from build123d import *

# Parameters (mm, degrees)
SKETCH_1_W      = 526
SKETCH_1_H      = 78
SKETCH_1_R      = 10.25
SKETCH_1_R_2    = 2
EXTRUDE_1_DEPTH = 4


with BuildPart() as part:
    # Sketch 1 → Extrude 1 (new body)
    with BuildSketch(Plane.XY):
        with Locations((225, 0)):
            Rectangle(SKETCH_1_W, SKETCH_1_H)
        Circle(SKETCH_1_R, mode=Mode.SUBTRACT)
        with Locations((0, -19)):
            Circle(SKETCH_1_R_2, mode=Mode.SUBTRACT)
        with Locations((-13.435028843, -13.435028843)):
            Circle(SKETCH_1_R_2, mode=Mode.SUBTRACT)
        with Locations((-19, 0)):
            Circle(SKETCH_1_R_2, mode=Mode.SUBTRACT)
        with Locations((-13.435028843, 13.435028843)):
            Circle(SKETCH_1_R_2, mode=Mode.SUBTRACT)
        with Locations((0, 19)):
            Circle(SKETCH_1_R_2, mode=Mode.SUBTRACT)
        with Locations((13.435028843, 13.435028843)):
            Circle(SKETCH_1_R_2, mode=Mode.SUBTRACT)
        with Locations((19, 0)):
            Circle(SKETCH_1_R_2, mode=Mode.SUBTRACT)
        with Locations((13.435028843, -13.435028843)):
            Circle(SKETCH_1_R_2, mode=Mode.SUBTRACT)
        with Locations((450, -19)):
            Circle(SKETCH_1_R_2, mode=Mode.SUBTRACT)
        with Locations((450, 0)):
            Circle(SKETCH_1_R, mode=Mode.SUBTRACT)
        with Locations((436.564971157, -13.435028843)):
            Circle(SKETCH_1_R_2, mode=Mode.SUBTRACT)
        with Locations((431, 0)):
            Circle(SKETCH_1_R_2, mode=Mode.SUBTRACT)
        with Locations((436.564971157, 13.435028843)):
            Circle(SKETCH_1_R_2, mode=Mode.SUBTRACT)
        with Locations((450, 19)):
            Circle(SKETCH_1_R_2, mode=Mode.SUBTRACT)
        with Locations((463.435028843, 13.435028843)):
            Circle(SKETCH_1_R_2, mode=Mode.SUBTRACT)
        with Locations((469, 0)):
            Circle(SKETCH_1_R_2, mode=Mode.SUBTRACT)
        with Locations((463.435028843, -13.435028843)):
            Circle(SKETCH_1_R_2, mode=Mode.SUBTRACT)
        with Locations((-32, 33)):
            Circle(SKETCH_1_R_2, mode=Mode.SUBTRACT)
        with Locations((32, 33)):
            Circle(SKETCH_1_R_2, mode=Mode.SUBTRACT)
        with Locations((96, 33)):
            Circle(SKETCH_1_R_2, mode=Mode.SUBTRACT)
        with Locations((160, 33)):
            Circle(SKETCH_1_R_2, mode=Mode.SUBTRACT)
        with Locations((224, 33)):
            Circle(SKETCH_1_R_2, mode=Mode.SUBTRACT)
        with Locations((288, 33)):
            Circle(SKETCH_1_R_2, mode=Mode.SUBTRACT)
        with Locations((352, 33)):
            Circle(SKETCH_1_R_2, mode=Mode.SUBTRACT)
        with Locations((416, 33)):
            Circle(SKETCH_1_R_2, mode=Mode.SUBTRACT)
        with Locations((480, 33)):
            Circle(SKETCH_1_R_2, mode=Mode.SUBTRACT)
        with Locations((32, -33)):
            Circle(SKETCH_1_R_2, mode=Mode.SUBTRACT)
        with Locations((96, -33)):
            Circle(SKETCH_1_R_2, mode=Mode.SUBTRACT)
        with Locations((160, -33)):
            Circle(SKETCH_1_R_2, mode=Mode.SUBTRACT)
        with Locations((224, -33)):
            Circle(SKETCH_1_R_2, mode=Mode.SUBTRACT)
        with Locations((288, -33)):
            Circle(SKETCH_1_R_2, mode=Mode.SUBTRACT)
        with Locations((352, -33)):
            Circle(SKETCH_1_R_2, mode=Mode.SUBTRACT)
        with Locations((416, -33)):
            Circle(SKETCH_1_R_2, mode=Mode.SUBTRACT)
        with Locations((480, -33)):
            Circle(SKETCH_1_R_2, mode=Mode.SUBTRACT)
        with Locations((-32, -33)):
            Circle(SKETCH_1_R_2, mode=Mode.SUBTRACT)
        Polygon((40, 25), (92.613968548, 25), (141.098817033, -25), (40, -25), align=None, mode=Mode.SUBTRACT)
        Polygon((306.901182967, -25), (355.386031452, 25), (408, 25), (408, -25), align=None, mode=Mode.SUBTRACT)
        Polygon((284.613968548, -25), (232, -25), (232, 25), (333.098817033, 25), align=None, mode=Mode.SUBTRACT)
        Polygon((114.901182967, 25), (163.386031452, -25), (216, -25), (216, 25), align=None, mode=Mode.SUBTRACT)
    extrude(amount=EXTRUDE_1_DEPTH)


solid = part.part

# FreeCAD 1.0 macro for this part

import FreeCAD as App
import Part
import Sketcher

doc = App.newDocument("Part")
body = doc.addObject("PartDesign::Body", "Body")

sketch1 = doc.addObject("Sketcher::SketchObject", "Sketch")
body.addObject(sketch1)
sketch1.AttachmentSupport = (doc.XY_Plane, [""])
sketch1.MapMode = "FlatFace"
sketch1.addGeometry([
    Part.LineSegment(App.Vector(-38, 39, 0), App.Vector(-38, -39, 0)),
    Part.LineSegment(App.Vector(-38, -39, 0), App.Vector(488, -39, 0)),
    Part.LineSegment(App.Vector(488, -39, 0), App.Vector(488, 39, 0)),
    Part.LineSegment(App.Vector(488, 39, 0), App.Vector(-38, 39, 0)),
    Part.Circle(App.Vector(-32, -33, 0), App.Vector(0, 0, 1), 2),
    Part.Circle(App.Vector(32, -33, 0), App.Vector(0, 0, 1), 2),
    Part.Circle(App.Vector(0, -19, 0), App.Vector(0, 0, 1), 2),
    Part.Circle(App.Vector(96, -33, 0), App.Vector(0, 0, 1), 2),
    Part.Circle(App.Vector(160, -33, 0), App.Vector(0, 0, 1), 2),
    Part.Circle(App.Vector(-13.4, -13.4, 0), App.Vector(0, 0, 1), 2),
    Part.Circle(App.Vector(13.4, -13.4, 0), App.Vector(0, 0, 1), 2),
    Part.Circle(App.Vector(224, -33, 0), App.Vector(0, 0, 1), 2),
    Part.Circle(App.Vector(288, -33, 0), App.Vector(0, 0, 1), 2),
    Part.Circle(App.Vector(352, -33, 0), App.Vector(0, 0, 1), 2),
    Part.Circle(App.Vector(416, -33, 0), App.Vector(0, 0, 1), 2),
    Part.Circle(App.Vector(480, -33, 0), App.Vector(0, 0, 1), 2),
    Part.Circle(App.Vector(450, -19, 0), App.Vector(0, 0, 1), 2),
    Part.Circle(App.Vector(436.6, -13.4, 0), App.Vector(0, 0, 1), 2),
    Part.Circle(App.Vector(463.4, -13.4, 0), App.Vector(0, 0, 1), 2),
    Part.Circle(App.Vector(-19, 0, 0), App.Vector(0, 0, 1), 2),
    Part.Circle(App.Vector(0, 0, 0), App.Vector(0, 0, 1), 10.2),
    Part.Circle(App.Vector(19, 0, 0), App.Vector(0, 0, 1), 2),
    Part.LineSegment(App.Vector(40, -25, 0), App.Vector(40, 25, 0)),
    Part.LineSegment(App.Vector(40, 25, 0), App.Vector(92.6, 25, 0)),
    Part.LineSegment(App.Vector(92.6, 25, 0), App.Vector(141.1, -25, 0)),
    Part.LineSegment(App.Vector(141.1, -25, 0), App.Vector(40, -25, 0)),
    Part.Circle(App.Vector(-13.4, 13.4, 0), App.Vector(0, 0, 1), 2),
    Part.Circle(App.Vector(13.4, 13.4, 0), App.Vector(0, 0, 1), 2),
    Part.LineSegment(App.Vector(163.4, -25, 0), App.Vector(114.9, 25, 0)),
    Part.LineSegment(App.Vector(114.9, 25, 0), App.Vector(216, 25, 0)),
    Part.LineSegment(App.Vector(216, 25, 0), App.Vector(216, -25, 0)),
    Part.LineSegment(App.Vector(216, -25, 0), App.Vector(163.4, -25, 0)),
    Part.Circle(App.Vector(0, 19, 0), App.Vector(0, 0, 1), 2),
    Part.Circle(App.Vector(-32, 33, 0), App.Vector(0, 0, 1), 2),
    Part.Circle(App.Vector(32, 33, 0), App.Vector(0, 0, 1), 2),
    Part.Circle(App.Vector(96, 33, 0), App.Vector(0, 0, 1), 2),
    Part.Circle(App.Vector(160, 33, 0), App.Vector(0, 0, 1), 2),
    Part.LineSegment(App.Vector(333.1, 25, 0), App.Vector(284.6, -25, 0)),
    Part.LineSegment(App.Vector(284.6, -25, 0), App.Vector(232, -25, 0)),
    Part.LineSegment(App.Vector(232, -25, 0), App.Vector(232, 25, 0)),
    Part.LineSegment(App.Vector(232, 25, 0), App.Vector(333.1, 25, 0)),
    Part.LineSegment(App.Vector(408, -25, 0), App.Vector(306.9, -25, 0)),
    Part.LineSegment(App.Vector(306.9, -25, 0), App.Vector(355.4, 25, 0)),
    Part.LineSegment(App.Vector(355.4, 25, 0), App.Vector(408, 25, 0)),
    Part.LineSegment(App.Vector(408, 25, 0), App.Vector(408, -25, 0)),
    Part.Circle(App.Vector(431, 0, 0), App.Vector(0, 0, 1), 2),
    Part.Circle(App.Vector(450, 0, 0), App.Vector(0, 0, 1), 10.2),
    Part.Circle(App.Vector(469, 0, 0), App.Vector(0, 0, 1), 2),
    Part.Circle(App.Vector(436.6, 13.4, 0), App.Vector(0, 0, 1), 2),
    Part.Circle(App.Vector(463.4, 13.4, 0), App.Vector(0, 0, 1), 2),
    Part.Circle(App.Vector(224, 33, 0), App.Vector(0, 0, 1), 2),
    Part.Circle(App.Vector(288, 33, 0), App.Vector(0, 0, 1), 2),
    Part.Circle(App.Vector(352, 33, 0), App.Vector(0, 0, 1), 2),
    Part.Circle(App.Vector(450, 19, 0), App.Vector(0, 0, 1), 2),
    Part.Circle(App.Vector(416, 33, 0), App.Vector(0, 0, 1), 2),
    Part.Circle(App.Vector(480, 33, 0), App.Vector(0, 0, 1), 2),
], False)
sketch1.addConstraint([
    Sketcher.Constraint("Coincident", 0, 2, 1, 1),
    Sketcher.Constraint("Coincident", 1, 2, 2, 1),
    Sketcher.Constraint("Coincident", 2, 2, 3, 1),
    Sketcher.Constraint("Coincident", 3, 2, 0, 1),
    Sketcher.Constraint("Coincident", 22, 2, 23, 1),
    Sketcher.Constraint("Coincident", 23, 2, 24, 1),
    Sketcher.Constraint("Coincident", 24, 2, 25, 1),
    Sketcher.Constraint("Coincident", 25, 2, 22, 1),
    Sketcher.Constraint("Coincident", 28, 2, 29, 1),
    Sketcher.Constraint("Coincident", 29, 2, 30, 1),
    Sketcher.Constraint("Coincident", 30, 2, 31, 1),
    Sketcher.Constraint("Coincident", 31, 2, 28, 1),
    Sketcher.Constraint("Coincident", 37, 2, 38, 1),
    Sketcher.Constraint("Coincident", 38, 2, 39, 1),
    Sketcher.Constraint("Coincident", 39, 2, 40, 1),
    Sketcher.Constraint("Coincident", 40, 2, 37, 1),
    Sketcher.Constraint("Coincident", 41, 2, 42, 1),
    Sketcher.Constraint("Coincident", 42, 2, 43, 1),
    Sketcher.Constraint("Coincident", 43, 2, 44, 1),
    Sketcher.Constraint("Coincident", 44, 2, 41, 1),
    Sketcher.Constraint("Vertical", 0),
    Sketcher.Constraint("Horizontal", 1),
    Sketcher.Constraint("Vertical", 2),
    Sketcher.Constraint("Horizontal", 3),
    Sketcher.Constraint("Vertical", 22),
    Sketcher.Constraint("Horizontal", 23),
    Sketcher.Constraint("Horizontal", 25),
    Sketcher.Constraint("Horizontal", 29),
    Sketcher.Constraint("Vertical", 30),
    Sketcher.Constraint("Horizontal", 31),
    Sketcher.Constraint("Horizontal", 38),
    Sketcher.Constraint("Vertical", 39),
    Sketcher.Constraint("Horizontal", 40),
    Sketcher.Constraint("Horizontal", 41),
    Sketcher.Constraint("Horizontal", 43),
    Sketcher.Constraint("Vertical", 44),
    Sketcher.Constraint("Coincident", 20, 3, -1, 1),
    Sketcher.Constraint("Equal", 4, 5),
    Sketcher.Constraint("Equal", 5, 6),
    Sketcher.Constraint("Equal", 6, 7),
    Sketcher.Constraint("Equal", 7, 8),
    Sketcher.Constraint("Equal", 8, 9),
    Sketcher.Constraint("Equal", 9, 10),
    Sketcher.Constraint("Equal", 10, 11),
    Sketcher.Constraint("Equal", 11, 12),
    Sketcher.Constraint("Equal", 12, 13),
    Sketcher.Constraint("Equal", 13, 14),
    Sketcher.Constraint("Equal", 14, 15),
    Sketcher.Constraint("Equal", 15, 16),
    Sketcher.Constraint("Equal", 16, 17),
    Sketcher.Constraint("Equal", 17, 18),
    Sketcher.Constraint("Equal", 18, 19),
    Sketcher.Constraint("Equal", 19, 21),
    Sketcher.Constraint("Equal", 21, 26),
    Sketcher.Constraint("Equal", 26, 27),
    Sketcher.Constraint("Equal", 27, 32),
    Sketcher.Constraint("Equal", 32, 33),
    Sketcher.Constraint("Equal", 33, 34),
    Sketcher.Constraint("Equal", 34, 35),
    Sketcher.Constraint("Equal", 35, 36),
    Sketcher.Constraint("Equal", 36, 45),
    Sketcher.Constraint("Equal", 20, 46),
    Sketcher.Constraint("Equal", 45, 47),
    Sketcher.Constraint("Equal", 47, 48),
    Sketcher.Constraint("Equal", 48, 49),
    Sketcher.Constraint("Equal", 49, 50),
    Sketcher.Constraint("Equal", 50, 51),
    Sketcher.Constraint("Equal", 51, 52),
    Sketcher.Constraint("Equal", 52, 53),
    Sketcher.Constraint("Equal", 53, 54),
    Sketcher.Constraint("Equal", 54, 55),
    Sketcher.Constraint("Symmetric", 19, 3, 21, 3, -1, 1),
    Sketcher.Constraint("Symmetric", 10, 3, 26, 3, -1, 1),
    Sketcher.Constraint("Symmetric", 9, 3, 27, 3, -1, 1),
    Sketcher.Constraint("Symmetric", 6, 3, 32, 3, -1, 1),
    Sketcher.Constraint("Symmetric", 5, 3, 33, 3, -1, 1),
    Sketcher.Constraint("Symmetric", 4, 3, 34, 3, -1, 1),
    Sketcher.Constraint("Symmetric", 4, 3, 5, 3, -2),
    Sketcher.Constraint("Symmetric", 9, 3, 10, 3, -2),
    Sketcher.Constraint("Symmetric", 7, 3, 35, 3, -1),
    Sketcher.Constraint("Symmetric", 8, 3, 36, 3, -1),
    Sketcher.Constraint("Symmetric", 17, 3, 48, 3, -1),
    Sketcher.Constraint("Symmetric", 18, 3, 49, 3, -1),
    Sketcher.Constraint("Symmetric", 11, 3, 50, 3, -1),
    Sketcher.Constraint("Symmetric", 12, 3, 51, 3, -1),
    Sketcher.Constraint("Symmetric", 13, 3, 52, 3, -1),
    Sketcher.Constraint("Symmetric", 16, 3, 53, 3, -1),
    Sketcher.Constraint("Symmetric", 14, 3, 54, 3, -1),
    Sketcher.Constraint("Symmetric", 15, 3, 55, 3, -1),
    Sketcher.Constraint("PointOnObject", 6, 3, -2),
    Sketcher.Constraint("PointOnObject", 19, 3, -1),
    Sketcher.Constraint("PointOnObject", 45, 3, -1),
    Sketcher.Constraint("PointOnObject", 46, 3, -1),
    Sketcher.Constraint("PointOnObject", 47, 3, -1),
    Sketcher.Constraint("Parallel", 24, 28),
    Sketcher.Constraint("Parallel", 37, 42),
    Sketcher.Constraint("Horizontal", 5, 3, 7, 3),
    Sketcher.Constraint("Horizontal", 7, 3, 8, 3),
    Sketcher.Constraint("Horizontal", 8, 3, 11, 3),
    Sketcher.Constraint("Horizontal", 11, 3, 12, 3),
    Sketcher.Constraint("Horizontal", 12, 3, 13, 3),
    Sketcher.Constraint("Horizontal", 13, 3, 14, 3),
    Sketcher.Constraint("Horizontal", 14, 3, 15, 3),
    Sketcher.Constraint("Horizontal", 6, 3, 16, 3),
    Sketcher.Constraint("Horizontal", 10, 3, 17, 3),
    Sketcher.Constraint("Horizontal", 17, 3, 18, 3),
    Sketcher.Constraint("Horizontal", 23, 2, 28, 2),
    Sketcher.Constraint("Horizontal", 25, 2, 30, 2),
    Sketcher.Constraint("Horizontal", 31, 2, 37, 2),
    Sketcher.Constraint("Horizontal", 29, 2, 39, 2),
    Sketcher.Constraint("Horizontal", 38, 2, 41, 2),
    Sketcher.Constraint("Horizontal", 40, 2, 42, 2),
    Sketcher.Constraint("Vertical", 16, 3, 46, 3),
    Sketcher.Constraint("Equal", 25, 29),
    Sketcher.Constraint("Equal", 31, 38),
    Sketcher.Constraint("Equal", 29, 40),
    Sketcher.Constraint("Equal", 40, 41),
    Sketcher.Constraint("Diameter", 4, 4.0),
    Sketcher.Constraint("Diameter", 20, 20.5),
    Sketcher.Constraint("DistanceX", 1, 1, 1, 2, 526.0),
    Sketcher.Constraint("DistanceY", 0, 2, 0, 1, 78.0),
    Sketcher.Constraint("DistanceY", 22, 1, 22, 2, 50.0),
    Sketcher.Constraint("DistanceX", 4, 3, -1, 1, 32.0),
    Sketcher.Constraint("DistanceY", 4, 3, -1, 1, 33.0),
    Sketcher.Constraint("DistanceY", 6, 3, -1, 1, 19.0),
    Sketcher.Constraint("DistanceX", -1, 1, 7, 3, 96.0),
    Sketcher.Constraint("DistanceX", -1, 1, 8, 3, 160.0),
    Sketcher.Constraint("DistanceX", -1, 1, 11, 3, 224.0),
    Sketcher.Constraint("DistanceX", -1, 1, 12, 3, 288.0),
    Sketcher.Constraint("DistanceX", -1, 1, 13, 3, 352.0),
    Sketcher.Constraint("DistanceX", -1, 1, 14, 3, 416.0),
    Sketcher.Constraint("DistanceX", -1, 1, 15, 3, 480.0),
    Sketcher.Constraint("DistanceX", -1, 1, 16, 3, 450.0),
    Sketcher.Constraint("DistanceX", 19, 3, -1, 1, 19.0),
    Sketcher.Constraint("DistanceX", -1, 1, 45, 3, 431.0),
    Sketcher.Constraint("DistanceX", -1, 1, 47, 3, 469.0),
    Sketcher.Constraint("DistanceX", 0, 2, -1, 1, 38.0),
    Sketcher.Constraint("DistanceY", 0, 2, -1, 1, 39.0),
    Sketcher.Constraint("DistanceX", -1, 1, 22, 2, 40.0),
    Sketcher.Constraint("DistanceY", -1, 1, 22, 2, 25.0),
    Sketcher.Constraint("DistanceX", -1, 1, 29, 2, 216.0),
    Sketcher.Constraint("DistanceX", -1, 1, 38, 2, 232.0),
    Sketcher.Constraint("DistanceX", -1, 1, 43, 2, 408.0),
    Sketcher.Constraint("DistanceX", 23, 1, 23, 2, 52.613969),
    Sketcher.Constraint("DistanceX", 25, 2, 25, 1, 101.098817),
    Sketcher.Constraint("DistanceX", 9, 3, -1, 1, 13.435029),
    Sketcher.Constraint("DistanceY", 9, 3, -1, 1, 13.435029),
    Sketcher.Constraint("DistanceX", -1, 1, 17, 3, 436.564971),
    Sketcher.Constraint("DistanceX", -1, 1, 18, 3, 463.435029),
])
pad1 = doc.addObject("PartDesign::Pad", "Pad")
body.addObject(pad1)
pad1.Profile = sketch1
pad1.Length = 4

doc.recompute()
